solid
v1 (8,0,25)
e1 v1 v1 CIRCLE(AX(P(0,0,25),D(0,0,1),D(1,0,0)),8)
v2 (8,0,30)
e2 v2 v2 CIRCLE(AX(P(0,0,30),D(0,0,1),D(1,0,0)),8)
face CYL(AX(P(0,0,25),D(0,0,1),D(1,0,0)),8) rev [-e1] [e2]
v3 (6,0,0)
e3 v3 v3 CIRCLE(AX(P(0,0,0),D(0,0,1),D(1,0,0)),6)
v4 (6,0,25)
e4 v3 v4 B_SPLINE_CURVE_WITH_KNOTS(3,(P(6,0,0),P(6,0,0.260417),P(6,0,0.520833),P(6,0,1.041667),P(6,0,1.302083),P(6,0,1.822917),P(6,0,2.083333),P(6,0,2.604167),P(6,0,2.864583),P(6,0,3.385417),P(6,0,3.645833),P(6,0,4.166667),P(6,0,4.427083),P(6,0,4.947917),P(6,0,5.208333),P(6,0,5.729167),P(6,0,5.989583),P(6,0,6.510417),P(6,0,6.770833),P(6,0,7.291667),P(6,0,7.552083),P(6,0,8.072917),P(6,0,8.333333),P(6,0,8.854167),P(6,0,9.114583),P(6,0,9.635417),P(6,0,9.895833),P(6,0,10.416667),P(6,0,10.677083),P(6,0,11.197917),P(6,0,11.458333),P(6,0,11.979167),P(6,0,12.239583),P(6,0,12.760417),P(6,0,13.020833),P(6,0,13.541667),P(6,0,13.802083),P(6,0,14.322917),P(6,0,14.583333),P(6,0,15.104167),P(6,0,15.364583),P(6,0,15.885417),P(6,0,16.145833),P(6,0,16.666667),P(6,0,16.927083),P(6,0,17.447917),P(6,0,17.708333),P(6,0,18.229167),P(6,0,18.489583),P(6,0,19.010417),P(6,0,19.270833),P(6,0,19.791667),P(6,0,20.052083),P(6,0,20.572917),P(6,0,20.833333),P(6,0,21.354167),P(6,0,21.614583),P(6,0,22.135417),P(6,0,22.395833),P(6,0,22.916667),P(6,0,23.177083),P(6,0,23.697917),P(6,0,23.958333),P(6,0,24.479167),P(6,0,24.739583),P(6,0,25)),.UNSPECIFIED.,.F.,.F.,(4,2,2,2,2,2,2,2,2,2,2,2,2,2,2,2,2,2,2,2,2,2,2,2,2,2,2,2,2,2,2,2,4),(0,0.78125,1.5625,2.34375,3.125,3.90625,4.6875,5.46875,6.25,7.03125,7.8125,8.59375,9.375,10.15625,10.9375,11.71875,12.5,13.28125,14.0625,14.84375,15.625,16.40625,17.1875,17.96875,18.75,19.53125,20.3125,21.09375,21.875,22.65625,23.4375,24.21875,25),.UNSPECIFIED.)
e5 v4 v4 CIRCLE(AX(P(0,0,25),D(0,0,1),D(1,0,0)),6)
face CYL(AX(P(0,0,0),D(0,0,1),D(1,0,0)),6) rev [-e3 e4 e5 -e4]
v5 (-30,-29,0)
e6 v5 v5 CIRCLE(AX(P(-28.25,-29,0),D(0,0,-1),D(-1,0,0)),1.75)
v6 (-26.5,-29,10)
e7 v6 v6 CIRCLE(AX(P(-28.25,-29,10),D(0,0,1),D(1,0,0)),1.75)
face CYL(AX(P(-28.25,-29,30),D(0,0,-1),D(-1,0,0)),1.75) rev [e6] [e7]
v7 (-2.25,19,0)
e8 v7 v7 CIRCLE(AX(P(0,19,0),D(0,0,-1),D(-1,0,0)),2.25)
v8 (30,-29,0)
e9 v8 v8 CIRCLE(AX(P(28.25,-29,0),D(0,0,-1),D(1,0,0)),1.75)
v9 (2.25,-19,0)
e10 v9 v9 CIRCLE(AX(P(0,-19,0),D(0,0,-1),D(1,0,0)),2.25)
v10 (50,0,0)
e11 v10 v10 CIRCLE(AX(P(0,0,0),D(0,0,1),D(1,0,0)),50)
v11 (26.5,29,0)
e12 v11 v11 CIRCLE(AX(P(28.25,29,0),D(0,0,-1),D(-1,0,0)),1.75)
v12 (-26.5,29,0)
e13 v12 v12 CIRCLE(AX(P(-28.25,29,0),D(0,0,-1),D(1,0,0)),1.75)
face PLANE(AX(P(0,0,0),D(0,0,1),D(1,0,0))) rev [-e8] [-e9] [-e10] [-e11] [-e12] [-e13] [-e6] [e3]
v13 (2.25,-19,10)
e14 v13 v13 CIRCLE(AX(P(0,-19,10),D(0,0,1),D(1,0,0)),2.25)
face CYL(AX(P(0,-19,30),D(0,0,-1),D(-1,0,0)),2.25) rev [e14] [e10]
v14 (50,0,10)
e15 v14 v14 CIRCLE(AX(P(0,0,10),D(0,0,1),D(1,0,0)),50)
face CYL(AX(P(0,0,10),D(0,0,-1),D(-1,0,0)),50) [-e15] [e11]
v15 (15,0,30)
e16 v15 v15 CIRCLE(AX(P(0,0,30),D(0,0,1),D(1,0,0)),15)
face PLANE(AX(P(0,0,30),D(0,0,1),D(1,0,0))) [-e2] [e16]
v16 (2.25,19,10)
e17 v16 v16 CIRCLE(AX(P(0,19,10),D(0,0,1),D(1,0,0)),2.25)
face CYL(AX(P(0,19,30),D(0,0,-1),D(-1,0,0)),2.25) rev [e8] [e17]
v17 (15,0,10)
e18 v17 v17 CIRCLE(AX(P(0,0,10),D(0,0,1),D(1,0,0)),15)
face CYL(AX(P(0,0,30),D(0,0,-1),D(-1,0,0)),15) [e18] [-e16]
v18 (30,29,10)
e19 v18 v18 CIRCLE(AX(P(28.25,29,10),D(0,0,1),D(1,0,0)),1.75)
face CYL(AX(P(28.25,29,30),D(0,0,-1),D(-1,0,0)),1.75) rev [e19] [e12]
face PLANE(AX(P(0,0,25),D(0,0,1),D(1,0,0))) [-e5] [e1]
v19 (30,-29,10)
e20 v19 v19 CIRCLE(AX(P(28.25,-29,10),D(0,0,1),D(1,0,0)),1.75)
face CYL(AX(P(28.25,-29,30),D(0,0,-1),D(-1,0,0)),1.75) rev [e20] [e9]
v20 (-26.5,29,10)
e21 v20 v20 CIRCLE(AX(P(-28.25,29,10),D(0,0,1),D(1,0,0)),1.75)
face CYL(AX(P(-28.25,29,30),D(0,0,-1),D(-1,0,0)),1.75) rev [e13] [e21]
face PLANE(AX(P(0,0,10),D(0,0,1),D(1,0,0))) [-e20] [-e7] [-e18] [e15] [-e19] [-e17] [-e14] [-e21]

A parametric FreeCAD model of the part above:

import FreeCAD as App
import Part
import Sketcher
from FreeCAD import Vector
Q = App.Units.Quantity

doc = App.newDocument("Part")
body = doc.addObject("PartDesign::Body", "Body")

# Sketch on XY plane
sketch1 = body.newObject("Sketcher::SketchObject", "Sketch")
sketch1.AttachmentSupport = (doc.getObject("XY_Plane"), [""])
sketch1.MapMode = "FlatFace"
sketch1.addGeometry(Part.Circle(Vector(0, 0, 0), Vector(0, 0, 1), 50), False)
sketch1.addConstraint(Sketcher.Constraint("Coincident", 0, 3, -1, 1))
sketch1.addConstraint(Sketcher.Constraint("Diameter", 0, Q("100 mm")))
pad1 = body.newObject("PartDesign::Pad", "Pad")
pad1.Profile = sketch1
pad1.Length = 10

# Sketch on XY plane
sketch2 = body.newObject("Sketcher::SketchObject", "Sketch001")
sketch2.AttachmentSupport = (doc.getObject("XY_Plane"), [""])
sketch2.MapMode = "FlatFace"
sketch2.AttachmentOffset = App.Placement(Vector(0, 0, 10), App.Rotation())
sketch2.addGeometry(Part.Circle(Vector(0, 0, 0), Vector(0, 0, 1), 15), False)
sketch2.addConstraint(Sketcher.Constraint("Coincident", 0, 3, -1, 1))
sketch2.addConstraint(Sketcher.Constraint("Diameter", 0, Q("30 mm")))
pad2 = body.newObject("PartDesign::Pad", "Pad001")
pad2.Profile = sketch2
pad2.Length = 20

# Sketch on XY plane
sketch3 = body.newObject("Sketcher::SketchObject", "Sketch002")
sketch3.AttachmentSupport = (doc.getObject("XY_Plane"), [""])
sketch3.MapMode = "FlatFace"
sketch3.AttachmentOffset = App.Placement(Vector(0, 0, 30), App.Rotation())
sketch3.addGeometry(Part.Circle(Vector(0, 0, 0), Vector(0, 0, 1), 8), False)
sketch3.addConstraint(Sketcher.Constraint("Coincident", 0, 3, -1, 1))
sketch3.addConstraint(Sketcher.Constraint("Diameter", 0, Q("16 mm")))
pocket1 = body.newObject("PartDesign::Pocket", "Pocket")
pocket1.Profile = sketch3
pocket1.Length = 5

# Sketch on XY plane
sketch4 = body.newObject("Sketcher::SketchObject", "Sketch003")
sketch4.AttachmentSupport = (doc.getObject("XY_Plane"), [""])
sketch4.MapMode = "FlatFace"
sketch4.AttachmentOffset = App.Placement(Vector(0, 0, 25), App.Rotation())
sketch4.addGeometry(Part.Circle(Vector(0, 0, 0), Vector(0, 0, 1), 6), False)
sketch4.addConstraint(Sketcher.Constraint("Coincident", 0, 3, -1, 1))
sketch4.addConstraint(Sketcher.Constraint("Diameter", 0, Q("12 mm")))
pocket2 = body.newObject("PartDesign::Pocket", "Pocket001")
pocket2.Profile = sketch4
pocket2.Type = "ThroughAll"

# Sketch on XY plane
sketch5 = body.newObject("Sketcher::SketchObject", "Sketch004")
sketch5.AttachmentSupport = (doc.getObject("XY_Plane"), [""])
sketch5.MapMode = "FlatFace"
sketch5.addGeometry(Part.Circle(Vector(28.25, 29, 0), Vector(0, 0, 1), 1.75), False)
sketch5.addGeometry(Part.Circle(Vector(-28.25, 29, 0), Vector(0, 0, 1), 1.75), False)
sketch5.addGeometry(Part.Circle(Vector(-28.25, -29, 0), Vector(0, 0, 1), 1.75), False)
sketch5.addGeometry(Part.Circle(Vector(28.25, -29, 0), Vector(0, 0, 1), 1.75), False)
sketch5.addConstraint(Sketcher.Constraint("Equal", 0, 1))
sketch5.addConstraint(Sketcher.Constraint("Equal", 1, 2))
sketch5.addConstraint(Sketcher.Constraint("Equal", 2, 3))
sketch5.addConstraint(Sketcher.Constraint("Symmetric", 0, 3, 2, 3, -1, 1))
sketch5.addConstraint(Sketcher.Constraint("Symmetric", 1, 3, 3, 3, -1, 1))
sketch5.addConstraint(Sketcher.Constraint("Symmetric", 0, 3, 1, 3, -2))
sketch5.addConstraint(Sketcher.Constraint("Diameter", 0, Q("3.5 mm")))
sketch5.addConstraint(Sketcher.Constraint("DistanceY", -1, 1, 0, 3, Q("29 mm")))
sketch5.addConstraint(Sketcher.Constraint("DistanceX", 1, 3, 0, 3, Q("56.5 mm")))
pocket3 = body.newObject("PartDesign::Pocket", "Pocket002")
pocket3.Profile = sketch5
pocket3.Type = "ThroughAll"
pocket3.Reversed = True

# Sketch on XY plane
sketch6 = body.newObject("Sketcher::SketchObject", "Sketch005")
sketch6.AttachmentSupport = (doc.getObject("XY_Plane"), [""])
sketch6.MapMode = "FlatFace"
sketch6.addGeometry(Part.Circle(Vector(0, 19, 0), Vector(0, 0, 1), 2.25), False)
sketch6.addGeometry(Part.Circle(Vector(0, -19, 0), Vector(0, 0, 1), 2.25), False)
sketch6.addConstraint(Sketcher.Constraint("Equal", 0, 1))
sketch6.addConstraint(Sketcher.Constraint("Symmetric", 0, 3, 1, 3, -1, 1))
sketch6.addConstraint(Sketcher.Constraint("PointOnObject", 0, 3, -2))
sketch6.addConstraint(Sketcher.Constraint("Diameter", 0, Q("4.5 mm")))
sketch6.addConstraint(Sketcher.Constraint("DistanceY", -1, 1, 0, 3, Q("19 mm")))
pocket4 = body.newObject("PartDesign::Pocket", "Pocket003")
pocket4.Profile = sketch6
pocket4.Type = "ThroughAll"
pocket4.Reversed = True

doc.recompute()
